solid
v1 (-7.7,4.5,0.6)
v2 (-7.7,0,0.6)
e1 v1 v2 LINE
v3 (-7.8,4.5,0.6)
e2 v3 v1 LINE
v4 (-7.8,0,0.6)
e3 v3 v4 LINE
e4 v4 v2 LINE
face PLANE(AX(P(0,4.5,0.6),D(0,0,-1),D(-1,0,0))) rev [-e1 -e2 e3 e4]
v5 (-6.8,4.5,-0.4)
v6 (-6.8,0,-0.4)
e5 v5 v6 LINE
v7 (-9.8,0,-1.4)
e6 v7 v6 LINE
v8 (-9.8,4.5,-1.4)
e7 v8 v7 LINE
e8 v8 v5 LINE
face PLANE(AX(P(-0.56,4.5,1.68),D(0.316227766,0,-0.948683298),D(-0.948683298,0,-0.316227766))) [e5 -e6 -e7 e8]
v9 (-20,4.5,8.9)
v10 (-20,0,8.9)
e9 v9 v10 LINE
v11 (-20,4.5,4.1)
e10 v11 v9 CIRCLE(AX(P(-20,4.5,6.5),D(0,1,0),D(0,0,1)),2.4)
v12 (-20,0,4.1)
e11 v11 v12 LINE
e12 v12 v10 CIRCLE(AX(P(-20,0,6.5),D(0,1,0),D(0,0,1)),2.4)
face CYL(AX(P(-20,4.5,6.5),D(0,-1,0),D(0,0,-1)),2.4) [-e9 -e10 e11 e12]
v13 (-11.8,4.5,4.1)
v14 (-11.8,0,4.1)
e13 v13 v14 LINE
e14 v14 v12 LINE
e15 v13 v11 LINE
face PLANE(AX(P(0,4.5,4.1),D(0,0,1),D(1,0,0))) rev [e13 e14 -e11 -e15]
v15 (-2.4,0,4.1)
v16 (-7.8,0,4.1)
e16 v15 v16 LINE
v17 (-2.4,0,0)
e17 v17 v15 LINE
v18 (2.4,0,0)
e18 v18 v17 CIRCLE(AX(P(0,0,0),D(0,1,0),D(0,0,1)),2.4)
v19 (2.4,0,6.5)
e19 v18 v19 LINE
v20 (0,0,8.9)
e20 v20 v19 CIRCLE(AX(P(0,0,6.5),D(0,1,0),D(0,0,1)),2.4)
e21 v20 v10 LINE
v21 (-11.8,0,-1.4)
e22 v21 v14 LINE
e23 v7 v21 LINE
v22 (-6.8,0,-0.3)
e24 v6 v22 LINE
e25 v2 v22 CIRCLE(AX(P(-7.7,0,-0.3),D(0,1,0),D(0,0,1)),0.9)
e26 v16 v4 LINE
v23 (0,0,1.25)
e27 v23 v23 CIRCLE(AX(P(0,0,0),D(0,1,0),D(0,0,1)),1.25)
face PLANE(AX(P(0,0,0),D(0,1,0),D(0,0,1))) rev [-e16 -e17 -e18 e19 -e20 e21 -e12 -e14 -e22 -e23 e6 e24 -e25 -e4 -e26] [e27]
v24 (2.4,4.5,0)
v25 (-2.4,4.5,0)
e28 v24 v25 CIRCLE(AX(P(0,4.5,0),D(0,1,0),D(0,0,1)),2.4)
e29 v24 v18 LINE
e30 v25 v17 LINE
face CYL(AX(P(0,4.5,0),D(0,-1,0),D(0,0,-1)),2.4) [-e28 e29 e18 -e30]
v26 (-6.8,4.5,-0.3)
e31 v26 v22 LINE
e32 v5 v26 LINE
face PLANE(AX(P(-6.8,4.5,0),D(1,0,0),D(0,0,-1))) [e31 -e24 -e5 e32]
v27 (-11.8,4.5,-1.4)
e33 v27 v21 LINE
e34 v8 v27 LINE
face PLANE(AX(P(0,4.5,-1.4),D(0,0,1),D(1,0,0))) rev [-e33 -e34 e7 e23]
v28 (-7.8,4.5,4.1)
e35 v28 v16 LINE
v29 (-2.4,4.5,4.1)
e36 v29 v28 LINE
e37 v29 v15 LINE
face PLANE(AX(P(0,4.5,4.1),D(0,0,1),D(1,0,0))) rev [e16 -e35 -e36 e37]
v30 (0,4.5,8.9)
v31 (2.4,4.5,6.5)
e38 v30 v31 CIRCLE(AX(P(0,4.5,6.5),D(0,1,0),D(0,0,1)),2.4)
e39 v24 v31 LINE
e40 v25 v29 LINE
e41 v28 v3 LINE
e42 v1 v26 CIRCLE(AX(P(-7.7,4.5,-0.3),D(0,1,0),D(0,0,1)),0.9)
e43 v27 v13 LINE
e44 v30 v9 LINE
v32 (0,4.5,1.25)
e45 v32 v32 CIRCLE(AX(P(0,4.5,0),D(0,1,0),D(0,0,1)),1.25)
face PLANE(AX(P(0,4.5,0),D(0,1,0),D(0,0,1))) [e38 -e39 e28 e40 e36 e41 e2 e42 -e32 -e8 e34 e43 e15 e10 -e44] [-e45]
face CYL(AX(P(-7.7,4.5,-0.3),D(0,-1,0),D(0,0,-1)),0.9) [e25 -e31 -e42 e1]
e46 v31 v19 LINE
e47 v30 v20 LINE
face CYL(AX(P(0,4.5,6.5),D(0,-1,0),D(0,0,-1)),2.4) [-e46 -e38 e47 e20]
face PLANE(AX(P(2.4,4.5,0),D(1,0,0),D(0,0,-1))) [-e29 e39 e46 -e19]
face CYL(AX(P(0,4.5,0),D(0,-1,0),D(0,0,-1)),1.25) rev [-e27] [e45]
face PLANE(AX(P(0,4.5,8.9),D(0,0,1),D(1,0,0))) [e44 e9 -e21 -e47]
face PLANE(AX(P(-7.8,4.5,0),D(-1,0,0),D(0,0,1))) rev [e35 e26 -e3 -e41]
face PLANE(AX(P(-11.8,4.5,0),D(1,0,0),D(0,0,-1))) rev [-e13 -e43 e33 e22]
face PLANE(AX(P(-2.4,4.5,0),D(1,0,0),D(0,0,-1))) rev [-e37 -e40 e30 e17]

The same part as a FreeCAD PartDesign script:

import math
import FreeCAD as App
import Part
import Sketcher
from FreeCAD import Vector
Q = App.Units.Quantity

doc = App.newDocument("Part")
params = doc.addObject("Spreadsheet::Sheet", "Params")
for row, (alias, value) in enumerate([
    ("sketch1_diameter", "2.5 mm"),
    ("sketch1_radius", "2.4 mm"),
    ("sketch1_radius2", "0.9 mm"),
    ("sketch1_width", "2 mm"),
    ("sketch1_width2", "20 mm"),
    ("pad1_length", "4.5 mm"),
], start=1):
    params.set(f"A{row}", alias)
    params.set(f"B{row}", "=" + value)
    params.setAlias(f"B{row}", alias)

body = doc.addObject("PartDesign::Body", "Body")

# Sketch on XZ plane
sketch1 = doc.addObject("Sketcher::SketchObject", "Sketch")
body.addObject(sketch1)
sketch1.AttachmentSupport = (doc.XZ_Plane, [""])
sketch1.MapMode = "FlatFace"
sketch1.addGeometry([
    Part.LineSegment(Vector(2.4, 6.5, 0), Vector(2.4, 0, 0)),  # 0
    Part.ArcOfCircle(Part.Circle(Vector(0, 0, 0), Vector(0, 0, 1), 2.4), math.radians(180), math.radians(360)),  # 1
    Part.LineSegment(Vector(-2.4, 0, 0), Vector(-2.4, 4.1, 0)),  # 2
    Part.LineSegment(Vector(-2.4, 4.1, 0), Vector(-7.8, 4.1, 0)),  # 3
    Part.LineSegment(Vector(-7.8, 4.1, 0), Vector(-7.8, 0.6, 0)),  # 4
    Part.LineSegment(Vector(-7.8, 0.6, 0), Vector(-7.7, 0.6, 0)),  # 5
    Part.ArcOfCircle(Part.Circle(Vector(-7.7, -0.3, 0), Vector(0, 0, 1), 0.9), math.radians(0), math.radians(90)),  # 6
    Part.LineSegment(Vector(-6.8, -0.3, 0), Vector(-6.8, -0.4, 0)),  # 7
    Part.LineSegment(Vector(-6.8, -0.4, 0), Vector(-9.8, -1.4, 0)),  # 8
    Part.LineSegment(Vector(-9.8, -1.4, 0), Vector(-11.8, -1.4, 0)),  # 9
    Part.LineSegment(Vector(-11.8, -1.4, 0), Vector(-11.8, 4.1, 0)),  # 10
    Part.LineSegment(Vector(-11.8, 4.1, 0), Vector(-20, 4.1, 0)),  # 11
    Part.ArcOfCircle(Part.Circle(Vector(-20, 6.5, 0), Vector(0, 0, 1), 2.4), math.radians(90), math.radians(270)),  # 12
    Part.LineSegment(Vector(-20, 8.9, 0), Vector(0, 8.9, 0)),  # 13
    Part.ArcOfCircle(Part.Circle(Vector(0, 6.5, 0), Vector(0, 0, 1), 2.4), math.radians(0), math.radians(90)),  # 14
    Part.Circle(Vector(0, 0, 0), Vector(0, 0, 1), 1.25),  # 15
], False)
sketch1.addConstraint([
    Sketcher.Constraint("Tangent", 0, 2, 1, 2),
    Sketcher.Constraint("Tangent", 1, 1, 2, 1),
    Sketcher.Constraint("Coincident", 2, 2, 3, 1),
    Sketcher.Constraint("Coincident", 3, 2, 4, 1),
    Sketcher.Constraint("Coincident", 4, 2, 5, 1),
    Sketcher.Constraint("Tangent", 5, 2, 6, 2),
    Sketcher.Constraint("Tangent", 6, 1, 7, 1),
    Sketcher.Constraint("Coincident", 7, 2, 8, 1),
    Sketcher.Constraint("Coincident", 8, 2, 9, 1),
    Sketcher.Constraint("Coincident", 9, 2, 10, 1),
    Sketcher.Constraint("Coincident", 10, 2, 11, 1),
    Sketcher.Constraint("Tangent", 11, 2, 12, 2),
    Sketcher.Constraint("Tangent", 12, 1, 13, 1),
    Sketcher.Constraint("Tangent", 13, 2, 14, 2),
    Sketcher.Constraint("Tangent", 14, 1, 0, 1),
    Sketcher.Constraint("Vertical", 0),
    Sketcher.Constraint("Vertical", 2),
    Sketcher.Constraint("Horizontal", 3),
    Sketcher.Constraint("Vertical", 4),
    Sketcher.Constraint("Horizontal", 5),
    Sketcher.Constraint("Vertical", 7),
    Sketcher.Constraint("Horizontal", 9),
    Sketcher.Constraint("Vertical", 10),
    Sketcher.Constraint("Horizontal", 11),
    Sketcher.Constraint("Horizontal", 13),
    Sketcher.Constraint("Coincident", 1, 3, -1, 1),
    Sketcher.Constraint("Coincident", 15, 3, -1, 1),
    Sketcher.Constraint("Equal", 1, 12),
    Sketcher.Constraint("Equal", 12, 14),
    Sketcher.Constraint("Horizontal", 3, 2, 10, 2),
    Sketcher.Constraint("Equal", 5, 7),
    Sketcher.Constraint("Diameter", 15, Q("2.5 mm")),
    Sketcher.Constraint("Radius", 1, Q("2.4 mm")),
    Sketcher.Constraint("Radius", 6, Q("0.9 mm")),
    Sketcher.Constraint("DistanceX", 9, 2, 9, 1, Q("2 mm")),
    Sketcher.Constraint("DistanceX", 13, 1, 13, 2, Q("20 mm")),
    Sketcher.Constraint("DistanceX", 3, 2, 3, 1, Q("5.4 mm")),
    Sketcher.Constraint("DistanceX", 5, 1, 5, 2, Q("0.1 mm")),
    Sketcher.Constraint("DistanceX", 11, 2, 11, 1, Q("8.2 mm")),
    Sketcher.Constraint("DistanceY", 0, 2, 0, 1, Q("6.5 mm")),
    Sketcher.Constraint("DistanceY", 4, 2, 4, 1, Q("3.5 mm")),
    Sketcher.Constraint("DistanceY", 10, 1, 10, 2, Q("5.5 mm")),
])
sketch1.setExpression("Constraints[31]", "Params.sketch1_diameter")
sketch1.setExpression("Constraints[32]", "Params.sketch1_radius")
sketch1.setExpression("Constraints[33]", "Params.sketch1_radius2")
sketch1.setExpression("Constraints[34]", "Params.sketch1_width")
sketch1.setExpression("Constraints[35]", "Params.sketch1_width2")
pad1 = doc.addObject("PartDesign::Pad", "Pad")
body.addObject(pad1)
pad1.Profile = sketch1
pad1.setExpression("Length", "Params.pad1_length")
pad1.Reversed = True

doc.recompute()
